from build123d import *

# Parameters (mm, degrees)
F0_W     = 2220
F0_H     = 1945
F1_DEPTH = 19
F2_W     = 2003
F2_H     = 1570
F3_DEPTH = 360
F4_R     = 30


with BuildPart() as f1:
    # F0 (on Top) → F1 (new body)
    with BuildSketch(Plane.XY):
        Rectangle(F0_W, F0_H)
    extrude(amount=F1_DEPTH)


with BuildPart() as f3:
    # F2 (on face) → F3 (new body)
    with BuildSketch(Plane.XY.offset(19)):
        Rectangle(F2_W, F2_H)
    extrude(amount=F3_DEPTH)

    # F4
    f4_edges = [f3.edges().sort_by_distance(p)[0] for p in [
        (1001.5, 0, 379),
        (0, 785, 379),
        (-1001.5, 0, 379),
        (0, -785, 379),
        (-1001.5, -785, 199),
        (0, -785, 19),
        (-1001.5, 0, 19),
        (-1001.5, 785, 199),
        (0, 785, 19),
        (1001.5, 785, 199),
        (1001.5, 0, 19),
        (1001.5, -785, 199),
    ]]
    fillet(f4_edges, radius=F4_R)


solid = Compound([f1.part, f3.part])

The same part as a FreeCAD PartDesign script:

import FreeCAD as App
import Part
import Sketcher
from FreeCAD import Vector


def add_polygon(sketch, points):
    """Adds a closed chain of lines whose ends are joined by coincident constraints."""
    first, n = sketch.GeometryCount, len(points)
    for a, b in zip(points, points[1:] + points[:1]):
        sketch.addGeometry(Part.LineSegment(App.Vector(*a, 0), App.Vector(*b, 0)), False)
    for i in range(n):
        sketch.addConstraint(Sketcher.Constraint("Coincident", first + i, 2, first + (i + 1) % n, 1))

doc = App.newDocument("Part")
body = doc.addObject("PartDesign::Body", "Body")

# Sketch on XY plane
sketch1 = body.newObject("Sketcher::SketchObject", "Sketch")
sketch1.AttachmentSupport = (doc.getObject("XY_Plane"), [""])
sketch1.MapMode = "FlatFace"
add_polygon(sketch1, [(-1110, 972), (-1110, -972), (1110, -972), (1110, 972)])  # lines 0-3
sketch1.addConstraint([
    Sketcher.Constraint("Vertical", 0),
    Sketcher.Constraint("Horizontal", 1),
    Sketcher.Constraint("Vertical", 2),
    Sketcher.Constraint("Horizontal", 3),
    Sketcher.Constraint("Symmetric", 0, 2, 2, 2, -1, 1),
    Sketcher.Constraint("DistanceX", 1, 1, 1, 2, 2220.0),
    Sketcher.Constraint("DistanceY", 0, 2, 0, 1, 1945.0),
])
pad1 = body.newObject("PartDesign::Pad", "Pad")
pad1.Profile = sketch1
pad1.Length = 19
body2 = doc.addObject("PartDesign::Body", "Body001")

# Sketch on XY plane
sketch2 = body2.newObject("Sketcher::SketchObject", "Sketch001")
sketch2.AttachmentSupport = (doc.getObject("XY_Plane001"), [""])
sketch2.MapMode = "FlatFace"
sketch2.AttachmentOffset = App.Placement(Vector(0, 0, 19), App.Rotation())
add_polygon(sketch2, [(-1002, 785), (-1002, -785), (1002, -785), (1002, 785)])  # lines 0-3
sketch2.addConstraint([
    Sketcher.Constraint("Vertical", 0),
    Sketcher.Constraint("Horizontal", 1),
    Sketcher.Constraint("Vertical", 2),
    Sketcher.Constraint("Horizontal", 3),
    Sketcher.Constraint("Symmetric", 0, 2, 2, 2, -1, 1),
    Sketcher.Constraint("DistanceX", 1, 1, 1, 2, 2003.0),
    Sketcher.Constraint("DistanceY", 0, 2, 0, 1, 1570.0),
])
pad2 = body2.newObject("PartDesign::Pad", "Pad001")
pad2.Profile = sketch2
pad2.Length = 360
doc.recompute()

fillet = body2.newObject("PartDesign::Fillet", "Fillet")
fillet.Base = (pad2, ["Edge1"])
fillet.UseAllEdges = True
fillet.Radius = 30

doc.recompute()
